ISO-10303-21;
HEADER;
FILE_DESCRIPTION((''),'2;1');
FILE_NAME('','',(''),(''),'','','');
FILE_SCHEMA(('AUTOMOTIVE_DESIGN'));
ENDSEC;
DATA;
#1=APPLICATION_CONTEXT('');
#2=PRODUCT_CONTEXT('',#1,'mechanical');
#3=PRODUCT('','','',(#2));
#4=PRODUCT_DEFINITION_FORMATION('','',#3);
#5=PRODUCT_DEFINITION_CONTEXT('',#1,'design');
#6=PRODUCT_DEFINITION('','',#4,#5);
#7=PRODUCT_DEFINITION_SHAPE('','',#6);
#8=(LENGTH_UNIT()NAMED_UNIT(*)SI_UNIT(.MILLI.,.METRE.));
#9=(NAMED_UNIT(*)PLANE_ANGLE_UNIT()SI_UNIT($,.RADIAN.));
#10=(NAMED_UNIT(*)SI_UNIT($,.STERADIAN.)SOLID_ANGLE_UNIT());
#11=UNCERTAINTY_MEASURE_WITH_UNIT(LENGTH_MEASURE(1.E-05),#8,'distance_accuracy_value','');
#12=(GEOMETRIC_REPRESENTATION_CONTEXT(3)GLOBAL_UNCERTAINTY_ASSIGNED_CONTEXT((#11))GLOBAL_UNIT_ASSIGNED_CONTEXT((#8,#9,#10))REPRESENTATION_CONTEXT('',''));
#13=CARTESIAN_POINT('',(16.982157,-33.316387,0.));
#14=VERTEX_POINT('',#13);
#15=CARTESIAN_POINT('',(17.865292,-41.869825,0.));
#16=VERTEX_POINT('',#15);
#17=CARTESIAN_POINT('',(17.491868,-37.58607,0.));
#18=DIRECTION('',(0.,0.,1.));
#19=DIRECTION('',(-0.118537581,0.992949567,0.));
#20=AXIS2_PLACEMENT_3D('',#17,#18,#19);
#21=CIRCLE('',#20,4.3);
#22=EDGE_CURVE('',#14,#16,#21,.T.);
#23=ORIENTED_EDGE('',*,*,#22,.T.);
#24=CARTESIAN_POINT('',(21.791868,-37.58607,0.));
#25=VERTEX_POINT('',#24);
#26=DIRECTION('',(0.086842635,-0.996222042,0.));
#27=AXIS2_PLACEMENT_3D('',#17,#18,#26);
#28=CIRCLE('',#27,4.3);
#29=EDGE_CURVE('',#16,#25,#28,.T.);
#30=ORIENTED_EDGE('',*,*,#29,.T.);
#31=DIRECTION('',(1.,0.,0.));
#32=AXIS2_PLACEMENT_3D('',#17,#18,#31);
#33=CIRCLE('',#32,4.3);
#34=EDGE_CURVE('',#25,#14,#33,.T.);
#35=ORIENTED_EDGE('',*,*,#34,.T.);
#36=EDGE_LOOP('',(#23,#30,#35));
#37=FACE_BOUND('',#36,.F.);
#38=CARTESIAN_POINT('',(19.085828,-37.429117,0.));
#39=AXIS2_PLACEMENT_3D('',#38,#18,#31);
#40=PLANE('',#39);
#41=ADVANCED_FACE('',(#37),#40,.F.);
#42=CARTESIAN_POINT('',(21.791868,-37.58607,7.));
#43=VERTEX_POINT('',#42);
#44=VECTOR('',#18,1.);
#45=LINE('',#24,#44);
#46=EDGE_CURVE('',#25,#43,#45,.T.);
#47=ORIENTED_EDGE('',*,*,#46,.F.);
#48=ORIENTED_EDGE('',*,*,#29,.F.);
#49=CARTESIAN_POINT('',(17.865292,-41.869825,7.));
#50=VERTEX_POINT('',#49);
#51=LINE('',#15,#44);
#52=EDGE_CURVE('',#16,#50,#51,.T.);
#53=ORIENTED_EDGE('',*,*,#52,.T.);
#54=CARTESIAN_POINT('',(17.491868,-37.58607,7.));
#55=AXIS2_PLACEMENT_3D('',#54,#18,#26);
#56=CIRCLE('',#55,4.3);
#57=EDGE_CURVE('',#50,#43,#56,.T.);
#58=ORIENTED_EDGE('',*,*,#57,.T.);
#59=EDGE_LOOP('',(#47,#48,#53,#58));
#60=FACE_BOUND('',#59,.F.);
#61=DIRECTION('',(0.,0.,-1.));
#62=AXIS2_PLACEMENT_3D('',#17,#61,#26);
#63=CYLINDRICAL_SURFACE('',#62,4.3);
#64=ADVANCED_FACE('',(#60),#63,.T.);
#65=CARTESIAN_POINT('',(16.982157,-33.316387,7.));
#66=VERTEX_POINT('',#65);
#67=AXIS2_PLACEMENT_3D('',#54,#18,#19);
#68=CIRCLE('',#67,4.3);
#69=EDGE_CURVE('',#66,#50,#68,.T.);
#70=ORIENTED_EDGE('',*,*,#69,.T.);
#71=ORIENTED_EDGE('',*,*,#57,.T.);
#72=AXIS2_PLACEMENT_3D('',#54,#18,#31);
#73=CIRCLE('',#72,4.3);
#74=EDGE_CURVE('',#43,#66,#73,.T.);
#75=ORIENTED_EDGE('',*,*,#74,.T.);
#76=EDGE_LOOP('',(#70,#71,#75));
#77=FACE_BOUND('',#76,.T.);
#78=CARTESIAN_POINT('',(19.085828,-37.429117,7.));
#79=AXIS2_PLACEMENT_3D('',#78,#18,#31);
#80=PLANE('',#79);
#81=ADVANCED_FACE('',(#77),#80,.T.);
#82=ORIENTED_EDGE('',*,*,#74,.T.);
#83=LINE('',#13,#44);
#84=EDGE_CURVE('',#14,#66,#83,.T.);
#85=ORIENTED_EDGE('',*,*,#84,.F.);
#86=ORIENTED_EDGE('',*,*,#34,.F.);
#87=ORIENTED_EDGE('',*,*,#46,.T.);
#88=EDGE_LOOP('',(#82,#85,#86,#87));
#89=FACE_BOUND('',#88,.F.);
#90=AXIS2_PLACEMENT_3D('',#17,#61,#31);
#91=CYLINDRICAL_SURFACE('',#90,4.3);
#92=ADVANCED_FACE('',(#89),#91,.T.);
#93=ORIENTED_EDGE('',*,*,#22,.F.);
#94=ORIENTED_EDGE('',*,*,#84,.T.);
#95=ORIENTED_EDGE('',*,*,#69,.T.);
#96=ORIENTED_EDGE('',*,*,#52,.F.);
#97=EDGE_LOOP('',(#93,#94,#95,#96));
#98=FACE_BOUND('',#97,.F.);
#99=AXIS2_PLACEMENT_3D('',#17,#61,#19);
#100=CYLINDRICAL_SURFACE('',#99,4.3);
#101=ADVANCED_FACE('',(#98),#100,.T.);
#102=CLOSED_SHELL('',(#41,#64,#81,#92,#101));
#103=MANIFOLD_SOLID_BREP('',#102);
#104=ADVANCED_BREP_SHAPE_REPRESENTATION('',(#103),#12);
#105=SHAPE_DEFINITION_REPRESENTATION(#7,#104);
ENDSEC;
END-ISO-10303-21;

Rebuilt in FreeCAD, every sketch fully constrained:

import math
import FreeCAD as App
import Part
import Sketcher
Q = App.Units.Quantity

doc = App.newDocument("Part")
params = doc.addObject("Spreadsheet::Sheet", "Params")
for row, (alias, value) in enumerate([
    ("sketch1_radius", "4.3 mm"),
    ("pad1_length", "7 mm"),
], start=1):
    params.set(f"A{row}", alias)
    params.set(f"B{row}", "=" + value)
    params.setAlias(f"B{row}", alias)

body = doc.addObject("PartDesign::Body", "Body")

# Sketch on XY plane
sketch1 = doc.addObject("Sketcher::SketchObject", "Sketch")
body.addObject(sketch1)
sketch1.AttachmentSupport = (doc.XY_Plane, [""])
sketch1.MapMode = "FlatFace"
sketch1.addGeometry([
    Part.ArcOfCircle(Part.Circle(App.Vector(17.5, -37.6, 0), App.Vector(0, 0, 1), 4.3), math.radians(0), math.radians(97)),
    Part.ArcOfCircle(Part.Circle(App.Vector(17.5, -37.6, 0), App.Vector(0, 0, 1), 4.3), math.radians(97), math.radians(275)),
    Part.ArcOfCircle(Part.Circle(App.Vector(17.5, -37.6, 0), App.Vector(0, 0, 1), 4.3), math.radians(-85), math.radians(0)),
], False)
sketch1.addConstraint([
    Sketcher.Constraint("Tangent", 0, 2, 1, 1),
    Sketcher.Constraint("Tangent", 1, 2, 2, 1),
    Sketcher.Constraint("Tangent", 2, 2, 0, 1),
    Sketcher.Constraint("Horizontal", 1, 3, 2, 2),
    Sketcher.Constraint("Radius", 0, Q("4.3 mm")),
    Sketcher.Constraint("DistanceX", -1, 1, 0, 3, Q("17.491868 mm")),
    Sketcher.Constraint("DistanceY", 0, 3, -1, 1, Q("37.58607 mm")),
    Sketcher.Constraint("DistanceX", -1, 1, 1, 2, Q("17.865292 mm")),
    Sketcher.Constraint("DistanceX", 0, 2, 0, 3, Q("0.509712 mm")),
])
sketch1.setExpression("Constraints[4]", "Params.sketch1_radius")
pad1 = doc.addObject("PartDesign::Pad", "Pad")
body.addObject(pad1)
pad1.Profile = sketch1
pad1.setExpression("Length", "Params.pad1_length")

doc.recompute()
